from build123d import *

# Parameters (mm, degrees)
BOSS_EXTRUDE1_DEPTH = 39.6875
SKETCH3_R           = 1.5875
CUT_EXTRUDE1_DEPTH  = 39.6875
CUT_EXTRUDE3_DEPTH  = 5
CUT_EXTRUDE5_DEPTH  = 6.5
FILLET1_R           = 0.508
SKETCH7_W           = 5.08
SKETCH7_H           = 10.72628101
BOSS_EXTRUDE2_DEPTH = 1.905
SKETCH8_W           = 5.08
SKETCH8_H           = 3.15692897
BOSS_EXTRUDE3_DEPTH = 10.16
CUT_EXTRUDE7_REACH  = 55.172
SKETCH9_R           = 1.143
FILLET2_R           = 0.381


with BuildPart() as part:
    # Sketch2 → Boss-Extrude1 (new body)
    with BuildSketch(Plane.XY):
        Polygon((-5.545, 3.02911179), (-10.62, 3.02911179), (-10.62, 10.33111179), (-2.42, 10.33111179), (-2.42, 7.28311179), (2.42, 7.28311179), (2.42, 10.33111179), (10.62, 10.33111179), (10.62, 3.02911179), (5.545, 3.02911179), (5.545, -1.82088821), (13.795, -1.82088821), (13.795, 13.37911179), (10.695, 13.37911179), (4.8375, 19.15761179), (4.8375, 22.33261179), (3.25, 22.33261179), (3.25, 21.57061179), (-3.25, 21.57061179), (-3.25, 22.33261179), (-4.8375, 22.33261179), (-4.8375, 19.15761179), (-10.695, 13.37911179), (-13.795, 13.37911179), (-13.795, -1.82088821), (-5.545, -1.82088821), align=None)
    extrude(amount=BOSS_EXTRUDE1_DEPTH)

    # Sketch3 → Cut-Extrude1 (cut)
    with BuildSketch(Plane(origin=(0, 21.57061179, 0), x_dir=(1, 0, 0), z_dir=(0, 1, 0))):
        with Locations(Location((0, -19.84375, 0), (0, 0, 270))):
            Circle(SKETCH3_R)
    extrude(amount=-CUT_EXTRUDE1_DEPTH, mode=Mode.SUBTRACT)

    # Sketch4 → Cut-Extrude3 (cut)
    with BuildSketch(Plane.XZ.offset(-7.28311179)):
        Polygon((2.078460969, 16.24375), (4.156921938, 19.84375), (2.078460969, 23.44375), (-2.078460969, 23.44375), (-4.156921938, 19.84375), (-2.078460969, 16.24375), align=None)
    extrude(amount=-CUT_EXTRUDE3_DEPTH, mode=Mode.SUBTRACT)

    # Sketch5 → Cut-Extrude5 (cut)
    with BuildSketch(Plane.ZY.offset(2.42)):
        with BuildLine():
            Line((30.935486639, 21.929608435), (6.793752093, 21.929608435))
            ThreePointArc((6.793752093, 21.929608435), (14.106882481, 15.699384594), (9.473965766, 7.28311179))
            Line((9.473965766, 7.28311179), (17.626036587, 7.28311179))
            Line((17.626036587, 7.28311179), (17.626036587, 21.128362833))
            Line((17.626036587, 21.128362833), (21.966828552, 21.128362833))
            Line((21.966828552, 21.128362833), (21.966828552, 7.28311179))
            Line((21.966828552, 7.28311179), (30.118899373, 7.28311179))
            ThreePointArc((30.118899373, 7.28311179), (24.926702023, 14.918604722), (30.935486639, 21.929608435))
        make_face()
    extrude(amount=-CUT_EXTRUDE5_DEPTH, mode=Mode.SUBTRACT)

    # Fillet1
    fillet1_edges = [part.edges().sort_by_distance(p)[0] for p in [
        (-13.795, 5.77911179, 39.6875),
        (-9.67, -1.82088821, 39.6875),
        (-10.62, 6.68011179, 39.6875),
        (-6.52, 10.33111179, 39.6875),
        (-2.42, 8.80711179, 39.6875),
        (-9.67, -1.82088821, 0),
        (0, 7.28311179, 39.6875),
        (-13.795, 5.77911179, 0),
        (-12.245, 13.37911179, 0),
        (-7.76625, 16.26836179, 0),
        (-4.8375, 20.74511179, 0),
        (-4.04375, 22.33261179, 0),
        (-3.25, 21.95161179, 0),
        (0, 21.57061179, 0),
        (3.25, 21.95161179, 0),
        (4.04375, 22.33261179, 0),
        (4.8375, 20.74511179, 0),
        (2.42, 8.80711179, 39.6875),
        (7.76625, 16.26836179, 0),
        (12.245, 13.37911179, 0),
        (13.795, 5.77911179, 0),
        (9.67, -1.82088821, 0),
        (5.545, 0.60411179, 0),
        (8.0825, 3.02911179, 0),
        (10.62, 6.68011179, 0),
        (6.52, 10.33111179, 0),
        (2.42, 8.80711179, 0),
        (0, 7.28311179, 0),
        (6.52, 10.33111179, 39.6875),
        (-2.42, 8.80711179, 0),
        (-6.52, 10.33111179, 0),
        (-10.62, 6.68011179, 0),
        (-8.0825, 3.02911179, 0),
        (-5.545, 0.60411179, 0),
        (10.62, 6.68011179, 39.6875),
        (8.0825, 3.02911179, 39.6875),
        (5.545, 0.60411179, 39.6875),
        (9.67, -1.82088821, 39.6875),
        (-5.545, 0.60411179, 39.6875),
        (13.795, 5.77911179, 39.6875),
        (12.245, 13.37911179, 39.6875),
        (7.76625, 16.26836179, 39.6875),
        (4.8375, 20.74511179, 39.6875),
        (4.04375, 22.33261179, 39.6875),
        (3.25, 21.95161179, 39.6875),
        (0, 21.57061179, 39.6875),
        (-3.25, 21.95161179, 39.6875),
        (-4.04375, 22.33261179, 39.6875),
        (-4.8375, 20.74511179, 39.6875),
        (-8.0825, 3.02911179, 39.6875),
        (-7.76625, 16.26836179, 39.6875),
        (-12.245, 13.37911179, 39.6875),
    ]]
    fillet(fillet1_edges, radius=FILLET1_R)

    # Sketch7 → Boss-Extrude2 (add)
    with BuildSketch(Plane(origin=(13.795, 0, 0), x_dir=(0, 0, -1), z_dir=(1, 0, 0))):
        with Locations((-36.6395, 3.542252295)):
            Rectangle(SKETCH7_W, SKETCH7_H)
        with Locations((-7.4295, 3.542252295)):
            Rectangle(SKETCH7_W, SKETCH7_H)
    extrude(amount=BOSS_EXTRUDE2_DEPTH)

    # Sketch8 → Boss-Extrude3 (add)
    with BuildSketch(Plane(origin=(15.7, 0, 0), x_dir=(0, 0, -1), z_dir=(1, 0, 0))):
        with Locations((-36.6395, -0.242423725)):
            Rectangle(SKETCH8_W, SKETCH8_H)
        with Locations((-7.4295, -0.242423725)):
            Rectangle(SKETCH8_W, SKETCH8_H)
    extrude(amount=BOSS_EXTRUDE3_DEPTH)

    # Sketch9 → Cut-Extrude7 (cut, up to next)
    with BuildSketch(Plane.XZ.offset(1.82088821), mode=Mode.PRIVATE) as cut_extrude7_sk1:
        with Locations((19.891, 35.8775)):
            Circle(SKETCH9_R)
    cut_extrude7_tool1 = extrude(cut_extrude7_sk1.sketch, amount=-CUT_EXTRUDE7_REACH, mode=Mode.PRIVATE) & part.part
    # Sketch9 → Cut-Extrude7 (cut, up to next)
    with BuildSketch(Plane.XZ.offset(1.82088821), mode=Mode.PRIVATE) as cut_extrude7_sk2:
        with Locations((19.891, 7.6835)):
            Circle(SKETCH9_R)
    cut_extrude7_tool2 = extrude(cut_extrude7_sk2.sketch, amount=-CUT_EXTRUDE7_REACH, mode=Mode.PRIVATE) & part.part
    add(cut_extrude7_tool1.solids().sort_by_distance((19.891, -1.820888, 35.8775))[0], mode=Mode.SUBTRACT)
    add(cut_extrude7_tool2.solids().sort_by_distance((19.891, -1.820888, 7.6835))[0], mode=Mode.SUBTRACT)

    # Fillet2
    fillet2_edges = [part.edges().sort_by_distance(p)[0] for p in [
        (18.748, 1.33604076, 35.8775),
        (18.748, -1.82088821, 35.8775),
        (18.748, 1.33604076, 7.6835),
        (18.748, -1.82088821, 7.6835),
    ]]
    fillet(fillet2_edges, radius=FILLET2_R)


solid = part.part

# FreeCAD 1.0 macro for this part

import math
import FreeCAD as App
import Part
import Sketcher
from FreeCAD import Vector
Q = App.Units.Quantity


def edges_at(feature, points):
    """Names of the edges that pass closest to the given points."""
    edges = feature.Shape.Edges
    near = lambda p: min(range(len(edges)), key=lambda i: edges[i].distToShape(Part.Vertex(*p))[0])
    return sorted({f"Edge{near(p) + 1}" for p in points})

doc = App.newDocument("Part")
body = doc.addObject("PartDesign::Body", "Body")

sketch1 = body.newObject("Sketcher::SketchObject", "Sketch")
sketch1.AttachmentSupport = (doc.getObject("XY_Plane"), [""])
sketch1.MapMode = "FlatFace"
sketch1.addGeometry([
    Part.LineSegment(Vector(-5.5, 3, 0), Vector(-10.6, 3, 0)),
    Part.LineSegment(Vector(-10.6, 3, 0), Vector(-10.6, 10.3, 0)),
    Part.LineSegment(Vector(-10.6, 10.3, 0), Vector(-2.4, 10.3, 0)),
    Part.LineSegment(Vector(-2.4, 10.3, 0), Vector(-2.4, 7.3, 0)),
    Part.LineSegment(Vector(-2.4, 7.3, 0), Vector(2.4, 7.3, 0)),
    Part.LineSegment(Vector(2.4, 7.3, 0), Vector(2.4, 10.3, 0)),
    Part.LineSegment(Vector(2.4, 10.3, 0), Vector(10.6, 10.3, 0)),
    Part.LineSegment(Vector(10.6, 10.3, 0), Vector(10.6, 3, 0)),
    Part.LineSegment(Vector(10.6, 3, 0), Vector(5.5, 3, 0)),
    Part.LineSegment(Vector(5.5, 3, 0), Vector(5.5, -1.8, 0)),
    Part.LineSegment(Vector(5.5, -1.8, 0), Vector(13.8, -1.8, 0)),
    Part.LineSegment(Vector(13.8, -1.8, 0), Vector(13.8, 13.4, 0)),
    Part.LineSegment(Vector(13.8, 13.4, 0), Vector(10.7, 13.4, 0)),
    Part.LineSegment(Vector(10.7, 13.4, 0), Vector(4.8, 19.2, 0)),
    Part.LineSegment(Vector(4.8, 19.2, 0), Vector(4.8, 22.3, 0)),
    Part.LineSegment(Vector(4.8, 22.3, 0), Vector(3.2, 22.3, 0)),
    Part.LineSegment(Vector(3.2, 22.3, 0), Vector(3.2, 21.6, 0)),
    Part.LineSegment(Vector(3.2, 21.6, 0), Vector(-3.2, 21.6, 0)),
    Part.LineSegment(Vector(-3.2, 21.6, 0), Vector(-3.2, 22.3, 0)),
    Part.LineSegment(Vector(-3.2, 22.3, 0), Vector(-4.8, 22.3, 0)),
    Part.LineSegment(Vector(-4.8, 22.3, 0), Vector(-4.8, 19.2, 0)),
    Part.LineSegment(Vector(-4.8, 19.2, 0), Vector(-10.7, 13.4, 0)),
    Part.LineSegment(Vector(-10.7, 13.4, 0), Vector(-13.8, 13.4, 0)),
    Part.LineSegment(Vector(-13.8, 13.4, 0), Vector(-13.8, -1.8, 0)),
    Part.LineSegment(Vector(-13.8, -1.8, 0), Vector(-5.5, -1.8, 0)),
    Part.LineSegment(Vector(-5.5, -1.8, 0), Vector(-5.5, 3, 0)),
], False)
sketch1.addConstraint([
    Sketcher.Constraint("Coincident", 0, 2, 1, 1),
    Sketcher.Constraint("Coincident", 1, 2, 2, 1),
    Sketcher.Constraint("Coincident", 2, 2, 3, 1),
    Sketcher.Constraint("Coincident", 3, 2, 4, 1),
    Sketcher.Constraint("Coincident", 4, 2, 5, 1),
    Sketcher.Constraint("Coincident", 5, 2, 6, 1),
    Sketcher.Constraint("Coincident", 6, 2, 7, 1),
    Sketcher.Constraint("Coincident", 7, 2, 8, 1),
    Sketcher.Constraint("Coincident", 8, 2, 9, 1),
    Sketcher.Constraint("Coincident", 9, 2, 10, 1),
    Sketcher.Constraint("Coincident", 10, 2, 11, 1),
    Sketcher.Constraint("Coincident", 11, 2, 12, 1),
    Sketcher.Constraint("Coincident", 12, 2, 13, 1),
    Sketcher.Constraint("Coincident", 13, 2, 14, 1),
    Sketcher.Constraint("Coincident", 14, 2, 15, 1),
    Sketcher.Constraint("Coincident", 15, 2, 16, 1),
    Sketcher.Constraint("Coincident", 16, 2, 17, 1),
    Sketcher.Constraint("Coincident", 17, 2, 18, 1),
    Sketcher.Constraint("Coincident", 18, 2, 19, 1),
    Sketcher.Constraint("Coincident", 19, 2, 20, 1),
    Sketcher.Constraint("Coincident", 20, 2, 21, 1),
    Sketcher.Constraint("Coincident", 21, 2, 22, 1),
    Sketcher.Constraint("Coincident", 22, 2, 23, 1),
    Sketcher.Constraint("Coincident", 23, 2, 24, 1),
    Sketcher.Constraint("Coincident", 24, 2, 25, 1),
    Sketcher.Constraint("Coincident", 25, 2, 0, 1),
    Sketcher.Constraint("Horizontal", 0),
    Sketcher.Constraint("Vertical", 1),
    Sketcher.Constraint("Horizontal", 2),
    Sketcher.Constraint("Vertical", 3),
    Sketcher.Constraint("Horizontal", 4),
    Sketcher.Constraint("Vertical", 5),
    Sketcher.Constraint("Horizontal", 6),
    Sketcher.Constraint("Vertical", 7),
    Sketcher.Constraint("Horizontal", 8),
    Sketcher.Constraint("Vertical", 9),
    Sketcher.Constraint("Horizontal", 10),
    Sketcher.Constraint("Vertical", 11),
    Sketcher.Constraint("Horizontal", 12),
    Sketcher.Constraint("Vertical", 14),
    Sketcher.Constraint("Horizontal", 15),
    Sketcher.Constraint("Vertical", 16),
    Sketcher.Constraint("Horizontal", 17),
    Sketcher.Constraint("Vertical", 18),
    Sketcher.Constraint("Horizontal", 19),
    Sketcher.Constraint("Vertical", 20),
    Sketcher.Constraint("Horizontal", 22),
    Sketcher.Constraint("Vertical", 23),
    Sketcher.Constraint("Horizontal", 24),
    Sketcher.Constraint("Vertical", 25),
    Sketcher.Constraint("Symmetric", 2, 2, 5, 2, -2),
    Sketcher.Constraint("Symmetric", 0, 2, 7, 2, -2),
    Sketcher.Constraint("Symmetric", 15, 2, 18, 2, -2),
    Sketcher.Constraint("Symmetric", 13, 2, 20, 2, -2),
    Sketcher.Constraint("Symmetric", 12, 2, 21, 2, -2),
    Sketcher.Constraint("Symmetric", 10, 2, 23, 2, -2),
    Sketcher.Constraint("Equal", 0, 8),
    Sketcher.Constraint("DistanceY", 3, 2, 3, 1, Q("0.12 in")),
    Sketcher.Constraint("DistanceY", 16, 2, 16, 1, Q("0.03 in")),
    Sketcher.Constraint("DistanceX", 15, 2, 15, 1, Q("0.0625 in")),
    Sketcher.Constraint("DistanceY", 14, 1, 14, 2, Q("0.125 in")),
    Sketcher.Constraint("DistanceY", 6, 2, 11, 2, Q("0.12 in")),
    Sketcher.Constraint("DistanceX", 7, 2, 10, 2, Q("0.125 in")),
    Sketcher.Constraint("DistanceX", 0, 2, 0, 1, 5.075),
    Sketcher.Constraint("DistanceX", 2, 1, 2, 2, 8.2),
    Sketcher.Constraint("DistanceX", 4, 1, 4, 2, 4.84),
    Sketcher.Constraint("DistanceX", 12, 2, 12, 1, 3.1),
    Sketcher.Constraint("DistanceX", 17, 2, 17, 1, 6.5),
    Sketcher.Constraint("DistanceY", 1, 1, 1, 2, 7.302),
    Sketcher.Constraint("DistanceY", 9, 2, 9, 1, 4.85),
    Sketcher.Constraint("DistanceY", 12, 2, 13, 2, Q("0.2275 in")),
    Sketcher.Constraint("DistanceY", -1, 1, 0, 2, 3.029112),
])
pad1 = body.newObject("PartDesign::Pad", "Pad")
pad1.Profile = sketch1
pad1.Length = Q("1.5625 in")

sketch2 = body.newObject("Sketcher::SketchObject", "Sketch001")
sketch2.AttachmentSupport = (doc.getObject("XZ_Plane"), [""])
sketch2.MapMode = "FlatFace"
sketch2.AttachmentOffset = App.Placement(Vector(0, 0, -21.570612), App.Rotation())
sketch2.addGeometry(Part.Circle(Vector(0, 19.8, 0), Vector(0, 0, 1), 1.6), False)
sketch2.addConstraint([
    Sketcher.Constraint("PointOnObject", 0, 3, -2),
    Sketcher.Constraint("Diameter", 0, Q("0.125 in")),
    Sketcher.Constraint("DistanceY", -1, 1, 0, 3, Q("0.78125 in")),
])
pocket1 = body.newObject("PartDesign::Pocket", "Pocket")
pocket1.Profile = sketch2
pocket1.Length = Q("1.5625 in")
pocket1.Reversed = True

sketch3 = body.newObject("Sketcher::SketchObject", "Sketch002")
sketch3.AttachmentSupport = (doc.getObject("XZ_Plane"), [""])
sketch3.MapMode = "FlatFace"
sketch3.AttachmentOffset = App.Placement(Vector(0, 0, -7.283112), App.Rotation())
sketch3.addGeometry([
    Part.LineSegment(Vector(2.1, 16.2, 0), Vector(4.2, 19.8, 0)),
    Part.LineSegment(Vector(4.2, 19.8, 0), Vector(2.1, 23.4, 0)),
    Part.LineSegment(Vector(2.1, 23.4, 0), Vector(-2.1, 23.4, 0)),
    Part.LineSegment(Vector(-2.1, 23.4, 0), Vector(-4.2, 19.8, 0)),
    Part.LineSegment(Vector(-4.2, 19.8, 0), Vector(-2.1, 16.2, 0)),
    Part.LineSegment(Vector(-2.1, 16.2, 0), Vector(2.1, 16.2, 0)),
], False)
sketch3.addConstraint([
    Sketcher.Constraint("Coincident", 0, 2, 1, 1),
    Sketcher.Constraint("Coincident", 1, 2, 2, 1),
    Sketcher.Constraint("Coincident", 2, 2, 3, 1),
    Sketcher.Constraint("Coincident", 3, 2, 4, 1),
    Sketcher.Constraint("Coincident", 4, 2, 5, 1),
    Sketcher.Constraint("Coincident", 5, 2, 0, 1),
    Sketcher.Constraint("Horizontal", 2),
    Sketcher.Constraint("Horizontal", 5),
    Sketcher.Constraint("Symmetric", 0, 2, 3, 2, -2),
    Sketcher.Constraint("Parallel", 0, 3),
    Sketcher.Constraint("Parallel", 1, 4),
    Sketcher.Constraint("Vertical", 2, 2, 4, 2),
    Sketcher.Constraint("Vertical", 1, 2, 5, 2),
    Sketcher.Constraint("Angle", 0, Q("60 deg")),
    Sketcher.Constraint("DistanceY", -1, 1, 0, 2, Q("0.78125 in")),
    Sketcher.Constraint("DistanceX", 2, 2, 2, 1, 4.156922),
    Sketcher.Constraint("DistanceY", 0, 2, 1, 2, 3.6),
])
pocket2 = body.newObject("PartDesign::Pocket", "Pocket001")
pocket2.Profile = sketch3
pocket2.Length = 5

sketch4 = body.newObject("Sketcher::SketchObject", "Sketch003")
sketch4.AttachmentSupport = (doc.getObject("YZ_Plane"), [""])
sketch4.MapMode = "FlatFace"
sketch4.AttachmentOffset = App.Placement(Vector(0, 0, -2.42), App.Rotation())
sketch4.addGeometry([
    Part.LineSegment(Vector(21.9, 30.9, 0), Vector(21.9, 6.8, 0)),
    Part.ArcOfCircle(Part.Circle(Vector(14.3, 6.6, 0), Vector(0, 0, 1), 7.6), math.radians(1), math.radians(158)),
    Part.LineSegment(Vector(7.3, 9.5, 0), Vector(7.3, 17.6, 0)),
    Part.LineSegment(Vector(7.3, 17.6, 0), Vector(21.1, 17.6, 0)),
    Part.LineSegment(Vector(21.1, 17.6, 0), Vector(21.1, 22, 0)),
    Part.LineSegment(Vector(21.1, 22, 0), Vector(7.3, 22, 0)),
    Part.LineSegment(Vector(7.3, 22, 0), Vector(7.3, 30.1, 0)),
    Part.ArcOfCircle(Part.Circle(Vector(14.5, 32.5, 0), Vector(0, 0, 1), 7.6), math.radians(-162), math.radians(-12)),
], False)
sketch4.addConstraint([
    Sketcher.Constraint("Coincident", 0, 2, 1, 1),
    Sketcher.Constraint("Coincident", 1, 2, 2, 1),
    Sketcher.Constraint("Coincident", 2, 2, 3, 1),
    Sketcher.Constraint("Coincident", 3, 2, 4, 1),
    Sketcher.Constraint("Coincident", 4, 2, 5, 1),
    Sketcher.Constraint("Coincident", 5, 2, 6, 1),
    Sketcher.Constraint("Coincident", 6, 2, 7, 1),
    Sketcher.Constraint("Coincident", 7, 2, 0, 1),
    Sketcher.Constraint("Vertical", 0),
    Sketcher.Constraint("Vertical", 2),
    Sketcher.Constraint("Horizontal", 3),
    Sketcher.Constraint("Vertical", 4),
    Sketcher.Constraint("Horizontal", 5),
    Sketcher.Constraint("Vertical", 6),
    Sketcher.Constraint("Equal", 1, 7),
    Sketcher.Constraint("Vertical", 2, 2, 5, 2),
    Sketcher.Constraint("Equal", 2, 6),
    Sketcher.Constraint("Radius", 1, 7.6),
    Sketcher.Constraint("DistanceX", 3, 1, 3, 2, 13.845251),
    Sketcher.Constraint("DistanceY", 2, 1, 2, 2, 8.152071),
    Sketcher.Constraint("DistanceY", 4, 1, 4, 2, 4.340792),
    Sketcher.Constraint("DistanceY", -1, 1, 6, 2, 30.118899),
    Sketcher.Constraint("DistanceY", 0, 2, 0, 1, 24.141735),
    Sketcher.Constraint("DistanceX", -1, 1, 1, 3, 14.331351),
    Sketcher.Constraint("DistanceX", -1, 1, 7, 3, 14.495538),
    Sketcher.Constraint("DistanceX", -1, 1, 0, 2, 21.929608),
])
pocket3 = body.newObject("PartDesign::Pocket", "Pocket002")
pocket3.Profile = sketch4
pocket3.Length = 6.5
pocket3.Reversed = True
doc.recompute()

fillet = body.newObject("PartDesign::Fillet", "Fillet")
fillet.Base = (pocket3, edges_at(pocket3, [
    (-13.795, 5.779, 39.688),
    (-9.67, -1.821, 39.688),
    (-10.62, 6.68, 39.688),
    (-6.52, 10.331, 39.688),
    (-2.42, 8.807, 39.688),
    (-9.67, -1.821, 0),
    (0, 7.283, 39.688),
    (-13.795, 5.779, 0),
    (-12.245, 13.379, 0),
    (-7.766, 16.268, 0),
    (-4.838, 20.745, 0),
    (-4.044, 22.333, 0),
    (-3.25, 21.952, 0),
    (0, 21.571, 0),
    (3.25, 21.952, 0),
    (4.044, 22.333, 0),
    (4.838, 20.745, 0),
    (2.42, 8.807, 39.688),
    (7.766, 16.268, 0),
    (12.245, 13.379, 0),
    (13.795, 5.779, 0),
    (9.67, -1.821, 0),
    (5.545, 0.604, 0),
    (8.082, 3.029, 0),
    (10.62, 6.68, 0),
    (6.52, 10.331, 0),
    (2.42, 8.807, 0),
    (0, 7.283, 0),
    (6.52, 10.331, 39.688),
    (-2.42, 8.807, 0),
    (-6.52, 10.331, 0),
    (-10.62, 6.68, 0),
    (-8.082, 3.029, 0),
    (-5.545, 0.604, 0),
    (10.62, 6.68, 39.688),
    (8.082, 3.029, 39.688),
    (5.545, 0.604, 39.688),
    (9.67, -1.821, 39.688),
    (-5.545, 0.604, 39.688),
    (13.795, 5.779, 39.688),
    (12.245, 13.379, 39.688),
    (7.766, 16.268, 39.688),
    (4.838, 20.745, 39.688),
    (4.044, 22.333, 39.688),
    (3.25, 21.952, 39.688),
    (0, 21.571, 39.688),
    (-3.25, 21.952, 39.688),
    (-4.044, 22.333, 39.688),
    (-4.838, 20.745, 39.688),
    (-8.082, 3.029, 39.688),
    (-7.766, 16.268, 39.688),
    (-12.245, 13.379, 39.688),
]))
fillet.Radius = Q("0.02 in")

sketch5 = body.newObject("Sketcher::SketchObject", "Sketch004")
sketch5.AttachmentSupport = (doc.getObject("YZ_Plane"), [""])
sketch5.MapMode = "FlatFace"
sketch5.AttachmentOffset = App.Placement(Vector(0, 0, 13.795), App.Rotation())
sketch5.addGeometry([
    Part.LineSegment(Vector(9, 39, 0), Vector(-2, 39, 0)),
    Part.LineSegment(Vector(-2, 39, 0), Vector(-2, 34, 0)),
    Part.LineSegment(Vector(-2, 34, 0), Vector(9, 34, 0)),
    Part.LineSegment(Vector(9, 34, 0), Vector(9, 39, 0)),
    Part.LineSegment(Vector(9, 10, 0), Vector(-2, 10, 0)),
    Part.LineSegment(Vector(-2, 10, 0), Vector(-2, 5, 0)),
    Part.LineSegment(Vector(-2, 5, 0), Vector(9, 5, 0)),
    Part.LineSegment(Vector(9, 5, 0), Vector(9, 10, 0)),
], False)
sketch5.addConstraint([
    Sketcher.Constraint("Coincident", 0, 2, 1, 1),
    Sketcher.Constraint("Coincident", 1, 2, 2, 1),
    Sketcher.Constraint("Coincident", 2, 2, 3, 1),
    Sketcher.Constraint("Coincident", 3, 2, 0, 1),
    Sketcher.Constraint("Coincident", 4, 2, 5, 1),
    Sketcher.Constraint("Coincident", 5, 2, 6, 1),
    Sketcher.Constraint("Coincident", 6, 2, 7, 1),
    Sketcher.Constraint("Coincident", 7, 2, 4, 1),
    Sketcher.Constraint("Horizontal", 0),
    Sketcher.Constraint("Vertical", 1),
    Sketcher.Constraint("Horizontal", 2),
    Sketcher.Constraint("Vertical", 3),
    Sketcher.Constraint("Horizontal", 4),
    Sketcher.Constraint("Vertical", 5),
    Sketcher.Constraint("Horizontal", 6),
    Sketcher.Constraint("Vertical", 7),
    Sketcher.Constraint("Vertical", 1, 2, 4, 2),
    Sketcher.Constraint("Vertical", 3, 2, 6, 2),
    Sketcher.Constraint("Equal", 3, 5),
    Sketcher.Constraint("DistanceY", 1, 2, 1, 1, Q("0.2 in")),
    Sketcher.Constraint("DistanceY", 4, 2, 1, 2, Q("0.95 in")),
    Sketcher.Constraint("DistanceY", -1, 1, 0, 2, Q("1.5425 in")),
    Sketcher.Constraint("DistanceX", 0, 2, 0, 1, 10.726281),
    Sketcher.Constraint("DistanceX", 0, 2, -1, 1, 1.820888),
])
pad2 = body.newObject("PartDesign::Pad", "Pad001")
pad2.Profile = sketch5
pad2.Length = Q("0.075 in")

sketch6 = body.newObject("Sketcher::SketchObject", "Sketch005")
sketch6.AttachmentSupport = (doc.getObject("YZ_Plane"), [""])
sketch6.MapMode = "FlatFace"
sketch6.AttachmentOffset = App.Placement(Vector(0, 0, 15.7), App.Rotation())
sketch6.addGeometry([
    Part.LineSegment(Vector(1.3, 39.2, 0), Vector(-1.8, 39.2, 0)),
    Part.LineSegment(Vector(-1.8, 39.2, 0), Vector(-1.8, 34.1, 0)),
    Part.LineSegment(Vector(-1.8, 34.1, 0), Vector(1.3, 34.1, 0)),
    Part.LineSegment(Vector(1.3, 34.1, 0), Vector(1.3, 39.2, 0)),
    Part.LineSegment(Vector(1.3, 10, 0), Vector(-1.8, 10, 0)),
    Part.LineSegment(Vector(-1.8, 10, 0), Vector(-1.8, 4.9, 0)),
    Part.LineSegment(Vector(-1.8, 4.9, 0), Vector(1.3, 4.9, 0)),
    Part.LineSegment(Vector(1.3, 4.9, 0), Vector(1.3, 10, 0)),
], False)
sketch6.addConstraint([
    Sketcher.Constraint("Coincident", 0, 2, 1, 1),
    Sketcher.Constraint("Coincident", 1, 2, 2, 1),
    Sketcher.Constraint("Coincident", 2, 2, 3, 1),
    Sketcher.Constraint("Coincident", 3, 2, 0, 1),
    Sketcher.Constraint("Coincident", 4, 2, 5, 1),
    Sketcher.Constraint("Coincident", 5, 2, 6, 1),
    Sketcher.Constraint("Coincident", 6, 2, 7, 1),
    Sketcher.Constraint("Coincident", 7, 2, 4, 1),
    Sketcher.Constraint("Horizontal", 0),
    Sketcher.Constraint("Vertical", 1),
    Sketcher.Constraint("Horizontal", 2),
    Sketcher.Constraint("Vertical", 3),
    Sketcher.Constraint("Horizontal", 4),
    Sketcher.Constraint("Vertical", 5),
    Sketcher.Constraint("Horizontal", 6),
    Sketcher.Constraint("Vertical", 7),
    Sketcher.Constraint("Vertical", 1, 2, 4, 2),
    Sketcher.Constraint("Vertical", 3, 2, 6, 2),
    Sketcher.Constraint("Equal", 3, 5),
    Sketcher.Constraint("DistanceY", 1, 2, 1, 1, Q("0.2 in")),
    Sketcher.Constraint("DistanceY", 4, 2, 1, 2, Q("0.95 in")),
    Sketcher.Constraint("DistanceY", -1, 1, 0, 2, Q("1.5425 in")),
    Sketcher.Constraint("DistanceX", -1, 1, 2, 2, Q("0.0526 in")),
    Sketcher.Constraint("DistanceX", 0, 2, 0, 1, 3.156929),
])
pad3 = body.newObject("PartDesign::Pad", "Pad002")
pad3.Profile = sketch6
pad3.Length = Q("0.4 in")

sketch7 = body.newObject("Sketcher::SketchObject", "Sketch006")
sketch7.AttachmentSupport = (doc.getObject("XZ_Plane"), [""])
sketch7.MapMode = "FlatFace"
sketch7.AttachmentOffset = App.Placement(Vector(0, 0, 1.820888), App.Rotation())
sketch7.addGeometry(Part.Circle(Vector(19.9, 35.9, 0), Vector(0, 0, 1), 1.1), False)
sketch7.addConstraint([
    Sketcher.Constraint("Diameter", 0, Q("0.09 in")),
    Sketcher.Constraint("DistanceY", -1, 1, 0, 3, Q("1.4125 in")),
    Sketcher.Constraint("DistanceX", -1, 1, 0, 3, 19.891),
])
pocket4 = body.newObject("PartDesign::Pocket", "Pocket003")
pocket4.Profile = sketch7
pocket4.Type = "UpToFirst"

sketch8 = body.newObject("Sketcher::SketchObject", "Sketch007")
sketch8.AttachmentSupport = (doc.getObject("XZ_Plane"), [""])
sketch8.MapMode = "FlatFace"
sketch8.AttachmentOffset = App.Placement(Vector(0, 0, 1.820888), App.Rotation())
sketch8.addGeometry(Part.Circle(Vector(19.9, 7.7, 0), Vector(0, 0, 1), 1.1), False)
sketch8.addConstraint([
    Sketcher.Constraint("Diameter", 0, Q("0.09 in")),
    Sketcher.Constraint("DistanceY", -1, 1, 0, 3, Q("0.3025 in")),
    Sketcher.Constraint("DistanceX", -1, 1, 0, 3, 19.891),
])
pocket5 = body.newObject("PartDesign::Pocket", "Pocket004")
pocket5.Profile = sketch8
pocket5.Type = "UpToFirst"
doc.recompute()

fillet2 = body.newObject("PartDesign::Fillet", "Fillet001")
fillet2.Base = (pocket5, edges_at(pocket5, [
    (18.748, 1.336, 35.877),
    (18.748, -1.821, 35.877),
    (18.748, 1.336, 7.684),
    (18.748, -1.821, 7.684),
]))
fillet2.Radius = Q("0.015 in")

doc.recompute()
